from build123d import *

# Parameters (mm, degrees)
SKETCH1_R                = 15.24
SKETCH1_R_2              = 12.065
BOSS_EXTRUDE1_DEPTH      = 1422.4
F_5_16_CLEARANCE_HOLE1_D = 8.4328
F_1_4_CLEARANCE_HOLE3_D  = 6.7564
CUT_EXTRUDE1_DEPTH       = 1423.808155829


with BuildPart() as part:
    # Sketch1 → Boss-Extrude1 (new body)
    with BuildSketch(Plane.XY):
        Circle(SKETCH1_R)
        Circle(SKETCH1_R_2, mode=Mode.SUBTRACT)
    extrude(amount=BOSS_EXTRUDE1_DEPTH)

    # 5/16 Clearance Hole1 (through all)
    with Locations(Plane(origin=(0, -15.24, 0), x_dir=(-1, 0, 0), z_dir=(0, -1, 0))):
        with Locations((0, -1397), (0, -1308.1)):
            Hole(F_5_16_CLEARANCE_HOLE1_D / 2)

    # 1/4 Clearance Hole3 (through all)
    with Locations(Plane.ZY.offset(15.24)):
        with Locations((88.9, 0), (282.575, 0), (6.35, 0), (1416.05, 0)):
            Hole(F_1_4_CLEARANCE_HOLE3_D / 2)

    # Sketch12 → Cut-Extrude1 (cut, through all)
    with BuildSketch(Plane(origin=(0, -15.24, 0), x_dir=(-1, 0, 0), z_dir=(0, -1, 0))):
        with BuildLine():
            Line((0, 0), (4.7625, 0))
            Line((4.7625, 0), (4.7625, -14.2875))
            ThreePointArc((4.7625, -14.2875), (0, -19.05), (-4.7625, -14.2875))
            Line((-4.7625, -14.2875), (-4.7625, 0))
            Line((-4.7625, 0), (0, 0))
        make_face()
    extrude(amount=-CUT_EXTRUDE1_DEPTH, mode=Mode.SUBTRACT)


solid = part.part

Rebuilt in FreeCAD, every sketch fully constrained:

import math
import FreeCAD as App
import Part
import Sketcher

V = App.Vector
Q = App.Units.Quantity

doc = App.newDocument("Part")
params = doc.addObject("Spreadsheet::Sheet", "Params")
for row, (alias, value) in enumerate([
    ("sketch1_diameter", "1.2 in"),
    ("sketch1_diameter2", "0.95 in"),
    ("pad1_length", "56 in"),
    ("sketch2_diameter", "0.332 in"),
    ("hole_diameter", "0.332 in"),
    ("sketch3_diameter", "0.266 in"),
    ("hole2_diameter", "0.266 in"),
    ("sketch4_radius", "0.1875 in"),
    ("sketch4_height", "0.5625 in"),
], start=1):
    params.set(f"A{row}", alias)
    params.set(f"B{row}", "=" + value)
    params.setAlias(f"B{row}", alias)

body = doc.addObject("PartDesign::Body", "Body")

# Sketch on XY plane
sketch1 = body.newObject("Sketcher::SketchObject", "Sketch")
sketch1.AttachmentSupport = (doc.getObject("XY_Plane"), [""])
sketch1.MapMode = "FlatFace"
sketch1.addGeometry([
    Part.Circle(V(0, 0, 0), V(0, 0, 1), 15),
    Part.Circle(V(0, 0, 0), V(0, 0, 1), 12),
], False)
sketch1.addConstraint([
    Sketcher.Constraint("Coincident", 0, 3, -1, 1),
    Sketcher.Constraint("Coincident", 1, 3, -1, 1),
    Sketcher.Constraint("Diameter", 0, Q("1.2 in")),
    Sketcher.Constraint("Diameter", 1, Q("0.95 in")),
])
sketch1.setExpression("Constraints[2]", "Params.sketch1_diameter")
sketch1.setExpression("Constraints[3]", "Params.sketch1_diameter2")
pad1 = body.newObject("PartDesign::Pad", "Pad")
pad1.Profile = sketch1
pad1.setExpression("Length", "Params.pad1_length")

# Sketch on XZ plane
sketch2 = body.newObject("Sketcher::SketchObject", "Sketch001")
sketch2.AttachmentSupport = (doc.getObject("XZ_Plane"), [""])
sketch2.MapMode = "FlatFace"
sketch2.AttachmentOffset = App.Placement(V(0, 0, 0.6 * 25.4), App.Rotation())
sketch2.addGeometry([
    Part.Circle(V(0, 1397, 0), V(0, 0, 1), 4.2),
    Part.Circle(V(0, 1308.1, 0), V(0, 0, 1), 4.2),
], False)
sketch2.addConstraint([
    Sketcher.Constraint("Equal", 0, 1),
    Sketcher.Constraint("PointOnObject", 0, 3, -2),
    Sketcher.Constraint("PointOnObject", 1, 3, -2),
    Sketcher.Constraint("Diameter", 0, Q("0.332 in")),
    Sketcher.Constraint("DistanceY", -1, 1, 0, 3, Q("55 in")),
    Sketcher.Constraint("DistanceY", -1, 1, 1, 3, Q("51.5 in")),
])
sketch2.setExpression("Constraints[3]", "Params.sketch2_diameter")
doc.recompute()
hole = body.newObject("PartDesign::Hole", "Hole")
hole.Profile = sketch2
hole.ThreadType = "None"
hole.setExpression("Diameter", "Params.hole_diameter")
hole.DepthType = "ThroughAll"

# Sketch on YZ plane
sketch3 = body.newObject("Sketcher::SketchObject", "Sketch002")
sketch3.AttachmentSupport = (doc.getObject("YZ_Plane"), [""])
sketch3.MapMode = "FlatFace"
sketch3.AttachmentOffset = App.Placement(V(0, 0, -0.6 * 25.4), App.Rotation())
sketch3.addGeometry([
    Part.Circle(V(0, 88.9, 0), V(0, 0, 1), 3.4),
    Part.Circle(V(0, 282.6, 0), V(0, 0, 1), 3.4),
    Part.Circle(V(0, 6.3, 0), V(0, 0, 1), 3.4),
    Part.Circle(V(0, 1416, 0), V(0, 0, 1), 3.4),
], False)
sketch3.addConstraint([
    Sketcher.Constraint("Equal", 0, 1),
    Sketcher.Constraint("Equal", 1, 2),
    Sketcher.Constraint("Equal", 2, 3),
    Sketcher.Constraint("PointOnObject", 0, 3, -2),
    Sketcher.Constraint("PointOnObject", 1, 3, -2),
    Sketcher.Constraint("PointOnObject", 2, 3, -2),
    Sketcher.Constraint("PointOnObject", 3, 3, -2),
    Sketcher.Constraint("Diameter", 0, Q("0.266 in")),
    Sketcher.Constraint("DistanceY", -1, 1, 0, 3, Q("3.5 in")),
    Sketcher.Constraint("DistanceY", 2, 3, 3, 3, Q("55.5 in")),
    Sketcher.Constraint("DistanceY", -1, 1, 2, 3, Q("0.25 in")),
    Sketcher.Constraint("DistanceY", -1, 1, 1, 3, Q("11.125 in")),
])
sketch3.setExpression("Constraints[7]", "Params.sketch3_diameter")
doc.recompute()
hole2 = body.newObject("PartDesign::Hole", "Hole001")
hole2.Profile = sketch3
hole2.ThreadType = "None"
hole2.setExpression("Diameter", "Params.hole2_diameter")
hole2.DepthType = "ThroughAll"
hole2.Reversed = True

# Sketch on XZ plane
sketch4 = body.newObject("Sketcher::SketchObject", "Sketch003")
sketch4.AttachmentSupport = (doc.getObject("XZ_Plane"), [""])
sketch4.MapMode = "FlatFace"
sketch4.AttachmentOffset = App.Placement(V(0, 0, 0.6 * 25.4), App.Rotation())
sketch4.addGeometry([
    Part.LineSegment(V(-4.8, 14.3, 0), V(-4.8, 0, 0)),
    Part.LineSegment(V(-4.8, 0, 0), V(4.8, 0, 0)),
    Part.LineSegment(V(4.8, 0, 0), V(4.8, 14.3, 0)),
    Part.ArcOfCircle(Part.Circle(V(0, 14.3, 0), V(0, 0, 1), 4.8), math.radians(0), math.radians(180)),
], False)
sketch4.addConstraint([
    Sketcher.Constraint("Coincident", 0, 2, 1, 1),
    Sketcher.Constraint("Coincident", 1, 2, 2, 1),
    Sketcher.Constraint("Tangent", 2, 2, 3, 1),
    Sketcher.Constraint("Tangent", 3, 2, 0, 1),
    Sketcher.Constraint("Vertical", 0),
    Sketcher.Constraint("Horizontal", 1),
    Sketcher.Constraint("Vertical", 2),
    Sketcher.Constraint("Symmetric", 0, 2, 1, 2, -1, 1),
    Sketcher.Constraint("Radius", 3, Q("0.1875 in")),
    Sketcher.Constraint("DistanceY", 0, 2, 0, 1, Q("0.5625 in")),
])
sketch4.setExpression("Constraints[8]", "Params.sketch4_radius")
sketch4.setExpression("Constraints[9]", "Params.sketch4_height")
pocket1 = body.newObject("PartDesign::Pocket", "Pocket")
pocket1.Profile = sketch4
pocket1.Type = "ThroughAll"

doc.recompute()
